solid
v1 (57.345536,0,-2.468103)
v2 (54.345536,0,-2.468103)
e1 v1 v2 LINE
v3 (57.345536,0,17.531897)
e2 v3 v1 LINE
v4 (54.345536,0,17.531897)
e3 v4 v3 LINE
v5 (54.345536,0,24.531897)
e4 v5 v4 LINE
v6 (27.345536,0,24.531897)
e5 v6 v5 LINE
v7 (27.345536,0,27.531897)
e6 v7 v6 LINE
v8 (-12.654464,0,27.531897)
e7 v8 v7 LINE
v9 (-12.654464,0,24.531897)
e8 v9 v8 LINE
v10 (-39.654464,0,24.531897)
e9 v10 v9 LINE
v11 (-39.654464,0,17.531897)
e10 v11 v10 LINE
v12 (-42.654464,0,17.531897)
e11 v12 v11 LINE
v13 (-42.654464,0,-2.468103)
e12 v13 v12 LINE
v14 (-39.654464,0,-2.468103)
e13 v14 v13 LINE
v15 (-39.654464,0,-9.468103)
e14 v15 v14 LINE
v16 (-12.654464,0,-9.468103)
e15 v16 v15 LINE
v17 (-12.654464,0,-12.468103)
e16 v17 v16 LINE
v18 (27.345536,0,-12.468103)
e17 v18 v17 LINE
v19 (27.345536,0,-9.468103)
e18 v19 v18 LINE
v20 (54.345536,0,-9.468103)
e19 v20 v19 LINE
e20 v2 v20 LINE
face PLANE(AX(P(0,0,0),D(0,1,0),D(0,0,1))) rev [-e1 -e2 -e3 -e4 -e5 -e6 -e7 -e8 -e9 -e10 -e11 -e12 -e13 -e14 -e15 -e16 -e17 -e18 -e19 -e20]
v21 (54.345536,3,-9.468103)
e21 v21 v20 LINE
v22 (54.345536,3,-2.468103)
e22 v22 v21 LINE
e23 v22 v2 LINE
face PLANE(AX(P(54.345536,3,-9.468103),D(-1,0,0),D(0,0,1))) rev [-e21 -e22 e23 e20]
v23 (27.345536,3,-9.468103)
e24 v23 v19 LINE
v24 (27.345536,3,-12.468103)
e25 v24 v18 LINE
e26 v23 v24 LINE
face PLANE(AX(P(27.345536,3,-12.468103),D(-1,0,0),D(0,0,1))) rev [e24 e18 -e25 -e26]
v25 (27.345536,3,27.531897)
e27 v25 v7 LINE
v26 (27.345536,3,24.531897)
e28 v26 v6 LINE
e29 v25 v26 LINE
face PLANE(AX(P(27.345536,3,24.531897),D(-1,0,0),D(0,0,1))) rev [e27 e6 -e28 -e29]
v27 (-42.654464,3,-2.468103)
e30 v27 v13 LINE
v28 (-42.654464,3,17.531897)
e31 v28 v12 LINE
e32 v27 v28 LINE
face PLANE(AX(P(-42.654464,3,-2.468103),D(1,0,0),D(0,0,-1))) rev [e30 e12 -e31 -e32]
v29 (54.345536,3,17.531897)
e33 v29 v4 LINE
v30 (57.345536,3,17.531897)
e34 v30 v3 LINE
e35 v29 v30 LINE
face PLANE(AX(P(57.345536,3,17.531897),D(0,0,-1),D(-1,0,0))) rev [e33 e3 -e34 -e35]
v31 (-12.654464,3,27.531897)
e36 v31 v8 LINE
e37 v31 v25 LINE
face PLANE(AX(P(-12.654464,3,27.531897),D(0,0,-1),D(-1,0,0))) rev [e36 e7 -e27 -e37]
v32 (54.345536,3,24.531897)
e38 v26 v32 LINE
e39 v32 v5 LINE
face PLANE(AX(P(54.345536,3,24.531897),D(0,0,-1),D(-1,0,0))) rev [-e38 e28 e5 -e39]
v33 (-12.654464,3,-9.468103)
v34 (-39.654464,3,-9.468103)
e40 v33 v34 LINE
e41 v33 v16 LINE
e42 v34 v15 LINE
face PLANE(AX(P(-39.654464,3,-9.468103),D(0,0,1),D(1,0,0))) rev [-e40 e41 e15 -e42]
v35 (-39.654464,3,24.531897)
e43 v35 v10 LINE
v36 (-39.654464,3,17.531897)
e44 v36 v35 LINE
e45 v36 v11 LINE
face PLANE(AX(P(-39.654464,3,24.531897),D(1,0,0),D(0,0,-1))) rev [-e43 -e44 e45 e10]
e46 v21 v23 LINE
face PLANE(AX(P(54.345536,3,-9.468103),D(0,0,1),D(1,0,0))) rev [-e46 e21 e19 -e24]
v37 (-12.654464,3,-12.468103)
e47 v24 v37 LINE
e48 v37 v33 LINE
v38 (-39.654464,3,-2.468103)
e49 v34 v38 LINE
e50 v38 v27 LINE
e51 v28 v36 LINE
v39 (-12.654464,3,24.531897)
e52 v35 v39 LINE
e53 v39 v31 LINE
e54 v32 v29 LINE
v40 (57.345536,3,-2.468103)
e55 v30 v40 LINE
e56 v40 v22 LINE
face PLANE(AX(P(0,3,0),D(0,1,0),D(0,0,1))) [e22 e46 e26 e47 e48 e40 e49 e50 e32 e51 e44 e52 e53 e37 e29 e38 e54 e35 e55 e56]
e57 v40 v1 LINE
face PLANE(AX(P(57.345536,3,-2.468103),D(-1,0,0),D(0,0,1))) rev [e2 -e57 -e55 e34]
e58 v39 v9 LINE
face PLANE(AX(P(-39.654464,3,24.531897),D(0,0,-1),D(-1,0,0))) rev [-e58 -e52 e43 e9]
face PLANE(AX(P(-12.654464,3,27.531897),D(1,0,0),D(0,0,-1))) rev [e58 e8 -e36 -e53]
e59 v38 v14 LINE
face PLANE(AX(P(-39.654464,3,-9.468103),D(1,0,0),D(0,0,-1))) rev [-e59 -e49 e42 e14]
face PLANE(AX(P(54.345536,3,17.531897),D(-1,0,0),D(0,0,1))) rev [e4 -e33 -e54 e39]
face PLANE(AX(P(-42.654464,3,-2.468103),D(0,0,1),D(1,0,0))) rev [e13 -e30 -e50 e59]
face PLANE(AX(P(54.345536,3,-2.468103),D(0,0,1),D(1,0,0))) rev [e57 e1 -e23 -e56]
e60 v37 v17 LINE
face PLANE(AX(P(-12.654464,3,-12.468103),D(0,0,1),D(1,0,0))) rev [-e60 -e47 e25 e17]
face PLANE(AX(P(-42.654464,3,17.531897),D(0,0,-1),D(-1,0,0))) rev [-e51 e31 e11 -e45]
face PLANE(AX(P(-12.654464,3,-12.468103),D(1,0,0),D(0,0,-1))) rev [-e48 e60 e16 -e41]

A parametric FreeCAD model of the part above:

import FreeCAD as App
import Part
import Sketcher

V = App.Vector
Q = App.Units.Quantity

doc = App.newDocument("Part")
body = doc.addObject("PartDesign::Body", "Body")

# Sketch on XZ plane
sketch1 = body.newObject("Sketcher::SketchObject", "Sketch")
sketch1.AttachmentSupport = (doc.getObject("XZ_Plane"), [""])
sketch1.MapMode = "FlatFace"
sketch1.addGeometry(Part.LineSegment(V(27.345536, -12.468103, 0), V(-12.654464, -12.468103, 0)), False)
sketch1.addGeometry(Part.LineSegment(V(-12.654464, -12.468103, 0), V(-12.654464, -9.468103, 0)), False)
sketch1.addGeometry(Part.LineSegment(V(-12.654464, -9.468103, 0), V(-39.654464, -9.468103, 0)), False)
sketch1.addGeometry(Part.LineSegment(V(-39.654464, -9.468103, 0), V(-39.654464, -2.468103, 0)), False)
sketch1.addGeometry(Part.LineSegment(V(-39.654464, -2.468103, 0), V(-42.654464, -2.468103, 0)), False)
sketch1.addGeometry(Part.LineSegment(V(-42.654464, -2.468103, 0), V(-42.654464, 17.531897, 0)), False)
sketch1.addGeometry(Part.LineSegment(V(-42.654464, 17.531897, 0), V(-39.654464, 17.531897, 0)), False)
sketch1.addGeometry(Part.LineSegment(V(-39.654464, 17.531897, 0), V(-39.654464, 24.531897, 0)), False)
sketch1.addGeometry(Part.LineSegment(V(-39.654464, 24.531897, 0), V(-12.654464, 24.531897, 0)), False)
sketch1.addGeometry(Part.LineSegment(V(-12.654464, 24.531897, 0), V(-12.654464, 27.531897, 0)), False)
sketch1.addGeometry(Part.LineSegment(V(-12.654464, 27.531897, 0), V(27.345536, 27.531897, 0)), False)
sketch1.addGeometry(Part.LineSegment(V(27.345536, 27.531897, 0), V(27.345536, 24.531897, 0)), False)
sketch1.addGeometry(Part.LineSegment(V(27.345536, 24.531897, 0), V(54.345536, 24.531897, 0)), False)
sketch1.addGeometry(Part.LineSegment(V(54.345536, 24.531897, 0), V(54.345536, 17.531897, 0)), False)
sketch1.addGeometry(Part.LineSegment(V(54.345536, 17.531897, 0), V(57.345536, 17.531897, 0)), False)
sketch1.addGeometry(Part.LineSegment(V(57.345536, 17.531897, 0), V(57.345536, -2.468103, 0)), False)
sketch1.addGeometry(Part.LineSegment(V(57.345536, -2.468103, 0), V(54.345536, -2.468103, 0)), False)
sketch1.addGeometry(Part.LineSegment(V(54.345536, -2.468103, 0), V(54.345536, -9.468103, 0)), False)
sketch1.addGeometry(Part.LineSegment(V(54.345536, -9.468103, 0), V(27.345536, -9.468103, 0)), False)
sketch1.addGeometry(Part.LineSegment(V(27.345536, -9.468103, 0), V(27.345536, -12.468103, 0)), False)
sketch1.addConstraint(Sketcher.Constraint("Coincident", 0, 2, 1, 1))
sketch1.addConstraint(Sketcher.Constraint("Coincident", 1, 2, 2, 1))
sketch1.addConstraint(Sketcher.Constraint("Coincident", 2, 2, 3, 1))
sketch1.addConstraint(Sketcher.Constraint("Coincident", 3, 2, 4, 1))
sketch1.addConstraint(Sketcher.Constraint("Coincident", 4, 2, 5, 1))
sketch1.addConstraint(Sketcher.Constraint("Coincident", 5, 2, 6, 1))
sketch1.addConstraint(Sketcher.Constraint("Coincident", 6, 2, 7, 1))
sketch1.addConstraint(Sketcher.Constraint("Coincident", 7, 2, 8, 1))
sketch1.addConstraint(Sketcher.Constraint("Coincident", 8, 2, 9, 1))
sketch1.addConstraint(Sketcher.Constraint("Coincident", 9, 2, 10, 1))
sketch1.addConstraint(Sketcher.Constraint("Coincident", 10, 2, 11, 1))
sketch1.addConstraint(Sketcher.Constraint("Coincident", 11, 2, 12, 1))
sketch1.addConstraint(Sketcher.Constraint("Coincident", 12, 2, 13, 1))
sketch1.addConstraint(Sketcher.Constraint("Coincident", 13, 2, 14, 1))
sketch1.addConstraint(Sketcher.Constraint("Coincident", 14, 2, 15, 1))
sketch1.addConstraint(Sketcher.Constraint("Coincident", 15, 2, 16, 1))
sketch1.addConstraint(Sketcher.Constraint("Coincident", 16, 2, 17, 1))
sketch1.addConstraint(Sketcher.Constraint("Coincident", 17, 2, 18, 1))
sketch1.addConstraint(Sketcher.Constraint("Coincident", 18, 2, 19, 1))
sketch1.addConstraint(Sketcher.Constraint("Coincident", 19, 2, 0, 1))
sketch1.addConstraint(Sketcher.Constraint("Horizontal", 0))
sketch1.addConstraint(Sketcher.Constraint("Vertical", 1))
sketch1.addConstraint(Sketcher.Constraint("Horizontal", 2))
sketch1.addConstraint(Sketcher.Constraint("Vertical", 3))
sketch1.addConstraint(Sketcher.Constraint("Horizontal", 4))
sketch1.addConstraint(Sketcher.Constraint("Vertical", 5))
sketch1.addConstraint(Sketcher.Constraint("Horizontal", 6))
sketch1.addConstraint(Sketcher.Constraint("Vertical", 7))
sketch1.addConstraint(Sketcher.Constraint("Horizontal", 8))
sketch1.addConstraint(Sketcher.Constraint("Vertical", 9))
sketch1.addConstraint(Sketcher.Constraint("Horizontal", 10))
sketch1.addConstraint(Sketcher.Constraint("Vertical", 11))
sketch1.addConstraint(Sketcher.Constraint("Horizontal", 12))
sketch1.addConstraint(Sketcher.Constraint("Vertical", 13))
sketch1.addConstraint(Sketcher.Constraint("Horizontal", 14))
sketch1.addConstraint(Sketcher.Constraint("Vertical", 15))
sketch1.addConstraint(Sketcher.Constraint("Horizontal", 16))
sketch1.addConstraint(Sketcher.Constraint("Vertical", 17))
sketch1.addConstraint(Sketcher.Constraint("Horizontal", 18))
sketch1.addConstraint(Sketcher.Constraint("Vertical", 19))
sketch1.addConstraint(Sketcher.Constraint("Horizontal", 8, 2, 11, 2))
sketch1.addConstraint(Sketcher.Constraint("Horizontal", 6, 2, 13, 2))
sketch1.addConstraint(Sketcher.Constraint("Horizontal", 4, 2, 15, 2))
sketch1.addConstraint(Sketcher.Constraint("Horizontal", 2, 2, 17, 2))
sketch1.addConstraint(Sketcher.Constraint("Vertical", 3, 2, 6, 2))
sketch1.addConstraint(Sketcher.Constraint("Vertical", 1, 2, 8, 2))
sketch1.addConstraint(Sketcher.Constraint("Vertical", 13, 2, 16, 2))
sketch1.addConstraint(Sketcher.Constraint("Vertical", 11, 2, 18, 2))
sketch1.addConstraint(Sketcher.Constraint("Equal", 8, 12))
sketch1.addConstraint(Sketcher.Constraint("Equal", 6, 14))
sketch1.addConstraint(Sketcher.Constraint("Equal", 16, 1))
sketch1.addConstraint(Sketcher.Constraint("Equal", 3, 7))
sketch1.addConstraint(Sketcher.Constraint("Equal", 1, 9))
sketch1.addConstraint(Sketcher.Constraint("DistanceX", 0, 2, 0, 1, Q("40 mm")))
sketch1.addConstraint(Sketcher.Constraint("DistanceX", 2, 2, 2, 1, Q("27 mm")))
sketch1.addConstraint(Sketcher.Constraint("DistanceX", 4, 2, 4, 1, Q("3 mm")))
sketch1.addConstraint(Sketcher.Constraint("DistanceY", 3, 1, 3, 2, Q("7 mm")))
sketch1.addConstraint(Sketcher.Constraint("DistanceY", 5, 1, 5, 2, Q("20 mm")))
sketch1.addConstraint(Sketcher.Constraint("DistanceX", 0, 2, -1, 1, Q("12.654464 mm")))
sketch1.addConstraint(Sketcher.Constraint("DistanceY", 0, 2, -1, 1, Q("12.468103 mm")))
pad1 = body.newObject("PartDesign::Pad", "Pad")
pad1.Profile = sketch1
pad1.Length = 3
pad1.Reversed = True

doc.recompute()
